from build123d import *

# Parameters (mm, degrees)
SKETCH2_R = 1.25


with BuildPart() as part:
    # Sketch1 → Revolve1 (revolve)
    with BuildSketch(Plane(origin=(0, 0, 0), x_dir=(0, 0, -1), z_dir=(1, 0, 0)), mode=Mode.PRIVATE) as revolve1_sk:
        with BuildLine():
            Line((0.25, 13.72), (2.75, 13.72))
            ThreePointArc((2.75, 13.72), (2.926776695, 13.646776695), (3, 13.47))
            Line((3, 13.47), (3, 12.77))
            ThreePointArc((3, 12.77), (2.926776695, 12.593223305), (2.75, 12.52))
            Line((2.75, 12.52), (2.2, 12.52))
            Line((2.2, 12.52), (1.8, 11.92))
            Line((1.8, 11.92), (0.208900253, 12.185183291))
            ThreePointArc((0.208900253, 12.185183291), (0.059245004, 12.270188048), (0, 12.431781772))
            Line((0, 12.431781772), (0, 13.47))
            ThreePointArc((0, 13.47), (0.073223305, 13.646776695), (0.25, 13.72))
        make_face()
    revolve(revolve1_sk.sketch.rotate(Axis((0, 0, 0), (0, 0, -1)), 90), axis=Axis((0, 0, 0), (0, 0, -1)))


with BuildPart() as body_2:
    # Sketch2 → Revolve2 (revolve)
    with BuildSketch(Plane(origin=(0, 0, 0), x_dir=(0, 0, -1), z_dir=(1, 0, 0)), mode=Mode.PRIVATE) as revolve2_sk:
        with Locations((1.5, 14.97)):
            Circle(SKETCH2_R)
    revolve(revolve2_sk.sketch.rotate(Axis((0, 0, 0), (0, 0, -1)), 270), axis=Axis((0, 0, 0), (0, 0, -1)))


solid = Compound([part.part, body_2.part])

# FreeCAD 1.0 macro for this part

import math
import FreeCAD as App
import Part
import Sketcher
from FreeCAD import Vector
Q = App.Units.Quantity

doc = App.newDocument("Part")
body = doc.addObject("PartDesign::Body", "Body")

# Sketch on YZ plane
sketch1 = body.newObject("Sketcher::SketchObject", "Sketch")
sketch1.AttachmentSupport = (doc.getObject("YZ_Plane"), [""])
sketch1.MapMode = "FlatFace"
sketch1.addGeometry(Part.LineSegment(Vector(13.72, -2.75, 0), Vector(13.72, -0.25, 0)), False)
sketch1.addGeometry(Part.ArcOfCircle(Part.Circle(Vector(13.47, -0.25, 0), Vector(0, 0, 1), 0.25), math.radians(0), math.radians(90)), False)
sketch1.addGeometry(Part.LineSegment(Vector(13.47, 0, 0), Vector(12.43, 0, 0)), False)
sketch1.addGeometry(Part.ArcOfCircle(Part.Circle(Vector(12.43, -0.25, 0), Vector(0, 0, 1), 0.25), math.radians(90), math.radians(171)), False)
sketch1.addGeometry(Part.LineSegment(Vector(12.19, -0.21, 0), Vector(11.92, -1.8, 0)), False)
sketch1.addGeometry(Part.LineSegment(Vector(11.92, -1.8, 0), Vector(12.52, -2.2, 0)), False)
sketch1.addGeometry(Part.LineSegment(Vector(12.52, -2.2, 0), Vector(12.52, -2.75, 0)), False)
sketch1.addGeometry(Part.ArcOfCircle(Part.Circle(Vector(12.77, -2.75, 0), Vector(0, 0, 1), 0.25), math.radians(-180), math.radians(-90)), False)
sketch1.addGeometry(Part.LineSegment(Vector(12.77, -3, 0), Vector(13.47, -3, 0)), False)
sketch1.addGeometry(Part.ArcOfCircle(Part.Circle(Vector(13.47, -2.75, 0), Vector(0, 0, 1), 0.25), math.radians(-90), math.radians(0)), False)
sketch1.addConstraint(Sketcher.Constraint("Tangent", 0, 2, 1, 1))
sketch1.addConstraint(Sketcher.Constraint("Tangent", 1, 2, 2, 1))
sketch1.addConstraint(Sketcher.Constraint("Tangent", 2, 2, 3, 1))
sketch1.addConstraint(Sketcher.Constraint("Tangent", 3, 2, 4, 1))
sketch1.addConstraint(Sketcher.Constraint("Coincident", 4, 2, 5, 1))
sketch1.addConstraint(Sketcher.Constraint("Coincident", 5, 2, 6, 1))
sketch1.addConstraint(Sketcher.Constraint("Tangent", 6, 2, 7, 1))
sketch1.addConstraint(Sketcher.Constraint("Tangent", 7, 2, 8, 1))
sketch1.addConstraint(Sketcher.Constraint("Tangent", 8, 2, 9, 1))
sketch1.addConstraint(Sketcher.Constraint("Tangent", 9, 2, 0, 1))
sketch1.addConstraint(Sketcher.Constraint("Vertical", 0))
sketch1.addConstraint(Sketcher.Constraint("Horizontal", 2))
sketch1.addConstraint(Sketcher.Constraint("Vertical", 6))
sketch1.addConstraint(Sketcher.Constraint("Horizontal", 8))
sketch1.addConstraint(Sketcher.Constraint("Equal", 1, 3))
sketch1.addConstraint(Sketcher.Constraint("Equal", 3, 7))
sketch1.addConstraint(Sketcher.Constraint("Equal", 7, 9))
sketch1.addConstraint(Sketcher.Constraint("PointOnObject", 1, 2, -1))
sketch1.addConstraint(Sketcher.Constraint("Radius", 1, Q("0.25 mm")))
sketch1.addConstraint(Sketcher.Constraint("DistanceX", 8, 1, 8, 2, Q("0.7 mm")))
sketch1.addConstraint(Sketcher.Constraint("DistanceY", 0, 1, 0, 2, Q("2.5 mm")))
sketch1.addConstraint(Sketcher.Constraint("DistanceY", 6, 2, 6, 1, Q("0.55 mm")))
sketch1.addConstraint(Sketcher.Constraint("DistanceY", 4, 2, -1, 1, Q("1.8 mm")))
sketch1.addConstraint(Sketcher.Constraint("DistanceX", 4, 2, 5, 2, Q("0.6 mm")))
sketch1.addConstraint(Sketcher.Constraint("DistanceX", -1, 1, 1, 3, Q("13.47 mm")))
sketch1.addConstraint(Sketcher.Constraint("DistanceX", 2, 2, 2, 1, Q("1.038218 mm")))
revolution = body.newObject("PartDesign::Revolution", "Revolution")
revolution.Profile = sketch1
revolution.ReferenceAxis = (sketch1, ["V_Axis"])
revolution.Angle = 360
body2 = doc.addObject("PartDesign::Body", "Body001")

# Sketch on YZ plane
sketch2 = body2.newObject("Sketcher::SketchObject", "Sketch001")
sketch2.AttachmentSupport = (doc.getObject("YZ_Plane001"), [""])
sketch2.MapMode = "FlatFace"
sketch2.addGeometry(Part.Circle(Vector(15, -1.5, 0), Vector(0, 0, 1), 1.2), False)
sketch2.addConstraint(Sketcher.Constraint("Diameter", 0, Q("2.5 mm")))
sketch2.addConstraint(Sketcher.Constraint("DistanceY", 0, 3, -1, 1, Q("1.5 mm")))
sketch2.addConstraint(Sketcher.Constraint("DistanceX", -1, 1, 0, 3, Q("14.97 mm")))
revolution2 = body2.newObject("PartDesign::Revolution", "Revolution001")
revolution2.Profile = sketch2
revolution2.ReferenceAxis = (sketch2, ["V_Axis"])
revolution2.Angle = 360

doc.recompute()
